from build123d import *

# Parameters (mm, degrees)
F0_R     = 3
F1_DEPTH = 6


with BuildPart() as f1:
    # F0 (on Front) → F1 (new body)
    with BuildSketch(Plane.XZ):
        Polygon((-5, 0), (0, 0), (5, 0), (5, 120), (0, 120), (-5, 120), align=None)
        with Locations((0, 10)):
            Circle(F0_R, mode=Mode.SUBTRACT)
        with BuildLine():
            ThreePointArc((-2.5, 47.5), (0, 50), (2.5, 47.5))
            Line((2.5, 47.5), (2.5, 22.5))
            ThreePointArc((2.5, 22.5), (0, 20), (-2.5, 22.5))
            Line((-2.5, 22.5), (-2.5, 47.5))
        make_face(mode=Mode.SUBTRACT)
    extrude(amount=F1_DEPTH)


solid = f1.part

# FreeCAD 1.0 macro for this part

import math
import FreeCAD as App
import Part
import Sketcher

V = App.Vector

doc = App.newDocument("Part")
body = doc.addObject("PartDesign::Body", "Body")

# Sketch on XZ plane
sketch1 = body.newObject("Sketcher::SketchObject", "Sketch")
sketch1.AttachmentSupport = (doc.getObject("XZ_Plane"), [""])
sketch1.MapMode = "FlatFace"
sketch1.addGeometry(Part.LineSegment(V(-5, 0, 0), V(5, 0, 0)), False)
sketch1.addGeometry(Part.LineSegment(V(5, 0, 0), V(5, 120, 0)), False)
sketch1.addGeometry(Part.LineSegment(V(5, 120, 0), V(-5, 120, 0)), False)
sketch1.addGeometry(Part.LineSegment(V(-5, 120, 0), V(-5, 0, 0)), False)
sketch1.addGeometry(Part.Circle(V(0, 10, 0), V(0, 0, 1), 3), False)
sketch1.addGeometry(Part.LineSegment(V(-2.5, 22.5, 0), V(-2.5, 47.5, 0)), False)
sketch1.addGeometry(Part.ArcOfCircle(Part.Circle(V(0, 47.5, 0), V(0, 0, 1), 2.5), math.radians(0), math.radians(180)), False)
sketch1.addGeometry(Part.LineSegment(V(2.5, 47.5, 0), V(2.5, 22.5, 0)), False)
sketch1.addGeometry(Part.ArcOfCircle(Part.Circle(V(0, 22.5, 0), V(0, 0, 1), 2.5), math.radians(180), math.radians(360)), False)
sketch1.addConstraint(Sketcher.Constraint("Coincident", 0, 2, 1, 1))
sketch1.addConstraint(Sketcher.Constraint("Coincident", 1, 2, 2, 1))
sketch1.addConstraint(Sketcher.Constraint("Coincident", 2, 2, 3, 1))
sketch1.addConstraint(Sketcher.Constraint("Coincident", 3, 2, 0, 1))
sketch1.addConstraint(Sketcher.Constraint("Tangent", 5, 2, 6, 2))
sketch1.addConstraint(Sketcher.Constraint("Tangent", 6, 1, 7, 1))
sketch1.addConstraint(Sketcher.Constraint("Tangent", 7, 2, 8, 2))
sketch1.addConstraint(Sketcher.Constraint("Tangent", 8, 1, 5, 1))
sketch1.addConstraint(Sketcher.Constraint("Horizontal", 0))
sketch1.addConstraint(Sketcher.Constraint("Vertical", 1))
sketch1.addConstraint(Sketcher.Constraint("Horizontal", 2))
sketch1.addConstraint(Sketcher.Constraint("Vertical", 3))
sketch1.addConstraint(Sketcher.Constraint("Vertical", 5))
sketch1.addConstraint(Sketcher.Constraint("Vertical", 7))
sketch1.addConstraint(Sketcher.Constraint("Symmetric", 0, 2, 3, 2, -1, 1))
sketch1.addConstraint(Sketcher.Constraint("PointOnObject", 4, 3, -2))
sketch1.addConstraint(Sketcher.Constraint("PointOnObject", 6, 3, -2))
sketch1.addConstraint(Sketcher.Constraint("Diameter", 4, 6.0))
sketch1.addConstraint(Sketcher.Constraint("Radius", 6, 2.5))
sketch1.addConstraint(Sketcher.Constraint("DistanceX", 0, 1, 0, 2, 10.0))
sketch1.addConstraint(Sketcher.Constraint("DistanceY", 1, 1, 1, 2, 120.0))
sketch1.addConstraint(Sketcher.Constraint("DistanceY", 5, 1, 5, 2, 25.0))
sketch1.addConstraint(Sketcher.Constraint("DistanceY", -1, 1, 4, 3, 10.0))
sketch1.addConstraint(Sketcher.Constraint("DistanceY", -1, 1, 6, 3, 47.5))
pad1 = body.newObject("PartDesign::Pad", "Pad")
pad1.Profile = sketch1
pad1.Length = 6

doc.recompute()
